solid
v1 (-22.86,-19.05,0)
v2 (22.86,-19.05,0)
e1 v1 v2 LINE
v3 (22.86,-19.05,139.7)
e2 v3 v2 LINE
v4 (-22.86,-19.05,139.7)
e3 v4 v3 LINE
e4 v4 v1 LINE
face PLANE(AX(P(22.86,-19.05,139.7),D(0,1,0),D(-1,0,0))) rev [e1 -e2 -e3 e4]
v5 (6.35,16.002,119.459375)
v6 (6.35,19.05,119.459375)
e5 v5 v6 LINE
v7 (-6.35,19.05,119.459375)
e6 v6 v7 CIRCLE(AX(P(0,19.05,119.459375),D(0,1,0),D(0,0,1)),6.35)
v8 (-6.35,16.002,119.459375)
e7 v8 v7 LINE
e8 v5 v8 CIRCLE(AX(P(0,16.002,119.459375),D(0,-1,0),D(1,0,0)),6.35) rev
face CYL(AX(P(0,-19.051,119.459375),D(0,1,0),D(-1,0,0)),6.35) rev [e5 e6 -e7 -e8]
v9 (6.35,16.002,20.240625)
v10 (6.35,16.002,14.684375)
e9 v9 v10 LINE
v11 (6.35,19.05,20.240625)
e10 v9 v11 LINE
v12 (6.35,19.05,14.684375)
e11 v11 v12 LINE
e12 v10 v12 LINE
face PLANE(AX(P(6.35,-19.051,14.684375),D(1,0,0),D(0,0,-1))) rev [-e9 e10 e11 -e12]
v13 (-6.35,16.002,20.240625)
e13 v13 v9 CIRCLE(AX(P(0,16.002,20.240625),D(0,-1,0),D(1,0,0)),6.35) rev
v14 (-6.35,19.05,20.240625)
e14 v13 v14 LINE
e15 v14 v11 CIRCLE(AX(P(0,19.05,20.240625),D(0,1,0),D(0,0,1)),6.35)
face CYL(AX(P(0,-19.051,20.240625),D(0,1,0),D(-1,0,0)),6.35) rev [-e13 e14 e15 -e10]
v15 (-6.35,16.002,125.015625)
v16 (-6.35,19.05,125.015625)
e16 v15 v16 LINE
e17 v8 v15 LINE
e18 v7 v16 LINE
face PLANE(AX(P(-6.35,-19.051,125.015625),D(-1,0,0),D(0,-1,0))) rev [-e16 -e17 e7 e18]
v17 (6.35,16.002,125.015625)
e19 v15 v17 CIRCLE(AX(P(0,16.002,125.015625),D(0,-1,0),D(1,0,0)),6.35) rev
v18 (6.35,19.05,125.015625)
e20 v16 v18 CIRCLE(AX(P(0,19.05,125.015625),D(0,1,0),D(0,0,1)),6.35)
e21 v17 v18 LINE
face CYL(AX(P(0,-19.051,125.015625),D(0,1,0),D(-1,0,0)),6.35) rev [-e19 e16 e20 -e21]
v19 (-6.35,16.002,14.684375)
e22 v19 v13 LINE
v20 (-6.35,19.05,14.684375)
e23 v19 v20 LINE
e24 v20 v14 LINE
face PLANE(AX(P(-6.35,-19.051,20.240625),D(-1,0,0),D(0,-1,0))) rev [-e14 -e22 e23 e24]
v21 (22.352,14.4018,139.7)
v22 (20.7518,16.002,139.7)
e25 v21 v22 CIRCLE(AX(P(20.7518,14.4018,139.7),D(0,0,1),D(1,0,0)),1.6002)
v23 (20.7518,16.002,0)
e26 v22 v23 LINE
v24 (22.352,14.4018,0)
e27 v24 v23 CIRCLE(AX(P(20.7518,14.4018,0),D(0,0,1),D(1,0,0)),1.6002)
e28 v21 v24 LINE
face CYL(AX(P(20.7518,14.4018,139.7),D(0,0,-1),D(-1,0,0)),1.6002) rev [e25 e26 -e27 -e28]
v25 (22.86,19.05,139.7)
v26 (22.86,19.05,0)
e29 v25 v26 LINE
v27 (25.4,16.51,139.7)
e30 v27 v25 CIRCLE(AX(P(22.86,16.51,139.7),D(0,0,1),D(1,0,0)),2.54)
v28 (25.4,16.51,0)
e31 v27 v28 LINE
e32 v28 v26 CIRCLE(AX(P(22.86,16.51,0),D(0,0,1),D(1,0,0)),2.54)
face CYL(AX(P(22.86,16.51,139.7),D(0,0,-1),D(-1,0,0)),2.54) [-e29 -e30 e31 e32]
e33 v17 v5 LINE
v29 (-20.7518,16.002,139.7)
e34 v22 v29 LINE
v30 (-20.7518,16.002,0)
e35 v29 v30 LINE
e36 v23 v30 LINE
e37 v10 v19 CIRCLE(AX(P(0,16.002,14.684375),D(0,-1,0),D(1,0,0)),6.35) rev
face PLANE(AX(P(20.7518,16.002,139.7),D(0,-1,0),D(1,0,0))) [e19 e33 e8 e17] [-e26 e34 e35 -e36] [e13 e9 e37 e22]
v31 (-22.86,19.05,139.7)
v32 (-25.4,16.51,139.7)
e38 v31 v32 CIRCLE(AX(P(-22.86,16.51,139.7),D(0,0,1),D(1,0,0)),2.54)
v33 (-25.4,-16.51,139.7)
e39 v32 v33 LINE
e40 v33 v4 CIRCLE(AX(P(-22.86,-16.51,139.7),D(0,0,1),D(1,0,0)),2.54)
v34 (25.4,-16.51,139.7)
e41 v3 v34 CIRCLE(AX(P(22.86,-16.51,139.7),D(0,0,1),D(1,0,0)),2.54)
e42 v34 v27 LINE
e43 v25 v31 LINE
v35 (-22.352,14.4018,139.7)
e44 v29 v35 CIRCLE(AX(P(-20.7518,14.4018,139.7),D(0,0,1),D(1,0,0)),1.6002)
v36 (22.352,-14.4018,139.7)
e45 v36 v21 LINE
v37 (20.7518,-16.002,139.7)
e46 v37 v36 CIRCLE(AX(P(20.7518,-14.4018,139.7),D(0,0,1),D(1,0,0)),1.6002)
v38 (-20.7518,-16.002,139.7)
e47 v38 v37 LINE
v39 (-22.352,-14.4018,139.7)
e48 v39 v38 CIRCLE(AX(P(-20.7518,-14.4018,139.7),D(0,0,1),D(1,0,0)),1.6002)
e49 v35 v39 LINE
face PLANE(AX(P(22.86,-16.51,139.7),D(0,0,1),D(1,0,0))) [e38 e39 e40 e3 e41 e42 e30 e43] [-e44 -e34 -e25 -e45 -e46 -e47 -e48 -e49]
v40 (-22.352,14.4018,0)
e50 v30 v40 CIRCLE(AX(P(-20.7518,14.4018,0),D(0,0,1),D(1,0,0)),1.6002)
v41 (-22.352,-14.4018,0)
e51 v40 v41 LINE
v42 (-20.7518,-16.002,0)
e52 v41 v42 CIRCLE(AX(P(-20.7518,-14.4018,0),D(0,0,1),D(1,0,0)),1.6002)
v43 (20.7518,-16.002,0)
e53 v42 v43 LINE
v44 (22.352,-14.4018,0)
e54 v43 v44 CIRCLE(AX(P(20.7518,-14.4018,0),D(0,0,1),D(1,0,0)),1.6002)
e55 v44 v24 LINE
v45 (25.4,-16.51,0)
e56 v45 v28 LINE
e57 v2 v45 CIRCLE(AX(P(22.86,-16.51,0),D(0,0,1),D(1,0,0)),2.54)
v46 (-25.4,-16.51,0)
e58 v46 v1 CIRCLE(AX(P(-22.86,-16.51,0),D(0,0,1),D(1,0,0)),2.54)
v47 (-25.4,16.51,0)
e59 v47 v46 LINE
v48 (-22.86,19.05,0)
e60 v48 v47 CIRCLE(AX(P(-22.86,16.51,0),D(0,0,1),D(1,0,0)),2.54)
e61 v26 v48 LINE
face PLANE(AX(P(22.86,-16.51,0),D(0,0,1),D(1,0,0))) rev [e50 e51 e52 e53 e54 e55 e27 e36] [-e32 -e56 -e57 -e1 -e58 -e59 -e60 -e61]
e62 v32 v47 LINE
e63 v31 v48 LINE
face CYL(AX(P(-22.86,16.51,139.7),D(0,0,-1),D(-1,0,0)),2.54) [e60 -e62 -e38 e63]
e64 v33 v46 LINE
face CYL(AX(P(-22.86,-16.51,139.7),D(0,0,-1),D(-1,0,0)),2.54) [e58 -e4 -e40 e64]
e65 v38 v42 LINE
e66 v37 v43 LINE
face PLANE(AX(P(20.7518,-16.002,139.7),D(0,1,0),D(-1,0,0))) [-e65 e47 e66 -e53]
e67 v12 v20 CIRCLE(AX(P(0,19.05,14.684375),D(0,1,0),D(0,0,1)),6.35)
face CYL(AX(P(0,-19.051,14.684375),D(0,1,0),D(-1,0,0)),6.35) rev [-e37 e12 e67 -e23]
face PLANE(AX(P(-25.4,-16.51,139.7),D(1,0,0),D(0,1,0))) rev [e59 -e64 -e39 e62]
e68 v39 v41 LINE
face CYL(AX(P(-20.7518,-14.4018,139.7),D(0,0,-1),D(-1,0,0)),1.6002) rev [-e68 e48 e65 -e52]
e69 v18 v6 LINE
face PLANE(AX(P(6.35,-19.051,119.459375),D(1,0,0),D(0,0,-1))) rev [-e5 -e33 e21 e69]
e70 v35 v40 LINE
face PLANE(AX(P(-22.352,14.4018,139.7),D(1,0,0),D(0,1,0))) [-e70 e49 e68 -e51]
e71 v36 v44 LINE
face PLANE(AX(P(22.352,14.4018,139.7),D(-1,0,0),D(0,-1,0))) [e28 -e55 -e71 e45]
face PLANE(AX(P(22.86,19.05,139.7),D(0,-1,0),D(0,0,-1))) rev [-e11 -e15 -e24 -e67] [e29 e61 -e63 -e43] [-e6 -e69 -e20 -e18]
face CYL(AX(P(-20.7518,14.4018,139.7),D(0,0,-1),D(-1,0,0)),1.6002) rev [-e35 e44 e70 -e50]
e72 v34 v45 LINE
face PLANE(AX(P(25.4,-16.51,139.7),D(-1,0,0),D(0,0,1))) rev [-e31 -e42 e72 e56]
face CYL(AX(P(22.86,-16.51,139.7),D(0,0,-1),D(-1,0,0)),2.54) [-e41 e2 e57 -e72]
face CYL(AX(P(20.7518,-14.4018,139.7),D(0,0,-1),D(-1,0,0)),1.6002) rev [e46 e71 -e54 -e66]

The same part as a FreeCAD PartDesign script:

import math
import FreeCAD as App
import Part
import Sketcher
Q = App.Units.Quantity

doc = App.newDocument("Part")
body = doc.addObject("PartDesign::Body", "Body")

# Sketch on XY plane
sketch1 = body.newObject("Sketcher::SketchObject", "Sketch")
sketch1.AttachmentSupport = (doc.getObject("XY_Plane"), [""])
sketch1.MapMode = "FlatFace"
sketch1.addGeometry(Part.LineSegment(App.Vector(25.4, -16.51, 0), App.Vector(25.4, 16.51, 0)), False)
sketch1.addGeometry(Part.ArcOfCircle(Part.Circle(App.Vector(22.86, 16.51, 0), App.Vector(0, 0, 1), 2.54), math.radians(0), math.radians(90)), False)
sketch1.addGeometry(Part.LineSegment(App.Vector(22.86, 19.05, 0), App.Vector(-22.86, 19.05, 0)), False)
sketch1.addGeometry(Part.ArcOfCircle(Part.Circle(App.Vector(-22.86, 16.51, 0), App.Vector(0, 0, 1), 2.54), math.radians(90), math.radians(180)), False)
sketch1.addGeometry(Part.LineSegment(App.Vector(-25.4, 16.51, 0), App.Vector(-25.4, -16.51, 0)), False)
sketch1.addGeometry(Part.ArcOfCircle(Part.Circle(App.Vector(-22.86, -16.51, 0), App.Vector(0, 0, 1), 2.54), math.radians(-180), math.radians(-90)), False)
sketch1.addGeometry(Part.LineSegment(App.Vector(-22.86, -19.05, 0), App.Vector(22.86, -19.05, 0)), False)
sketch1.addGeometry(Part.ArcOfCircle(Part.Circle(App.Vector(22.86, -16.51, 0), App.Vector(0, 0, 1), 2.54), math.radians(-90), math.radians(0)), False)
sketch1.addGeometry(Part.ArcOfCircle(Part.Circle(App.Vector(20.7518, 14.4018, 0), App.Vector(0, 0, 1), 1.6002), math.radians(0), math.radians(90)), False)
sketch1.addGeometry(Part.LineSegment(App.Vector(22.352, 14.4018, 0), App.Vector(22.352, -14.4018, 0)), False)
sketch1.addGeometry(Part.ArcOfCircle(Part.Circle(App.Vector(20.7518, -14.4018, 0), App.Vector(0, 0, 1), 1.6002), math.radians(-90), math.radians(0)), False)
sketch1.addGeometry(Part.LineSegment(App.Vector(20.7518, -16.002, 0), App.Vector(-20.7518, -16.002, 0)), False)
sketch1.addGeometry(Part.ArcOfCircle(Part.Circle(App.Vector(-20.7518, -14.4018, 0), App.Vector(0, 0, 1), 1.6002), math.radians(-180), math.radians(-90)), False)
sketch1.addGeometry(Part.LineSegment(App.Vector(-22.352, -14.4018, 0), App.Vector(-22.352, 14.4018, 0)), False)
sketch1.addGeometry(Part.ArcOfCircle(Part.Circle(App.Vector(-20.7518, 14.4018, 0), App.Vector(0, 0, 1), 1.6002), math.radians(90), math.radians(180)), False)
sketch1.addGeometry(Part.LineSegment(App.Vector(-20.7518, 16.002, 0), App.Vector(20.7518, 16.002, 0)), False)
sketch1.addConstraint(Sketcher.Constraint("Tangent", 0, 2, 1, 1))
sketch1.addConstraint(Sketcher.Constraint("Tangent", 1, 2, 2, 1))
sketch1.addConstraint(Sketcher.Constraint("Tangent", 2, 2, 3, 1))
sketch1.addConstraint(Sketcher.Constraint("Tangent", 3, 2, 4, 1))
sketch1.addConstraint(Sketcher.Constraint("Tangent", 4, 2, 5, 1))
sketch1.addConstraint(Sketcher.Constraint("Tangent", 5, 2, 6, 1))
sketch1.addConstraint(Sketcher.Constraint("Tangent", 6, 2, 7, 1))
sketch1.addConstraint(Sketcher.Constraint("Tangent", 7, 2, 0, 1))
sketch1.addConstraint(Sketcher.Constraint("Tangent", 8, 1, 9, 1))
sketch1.addConstraint(Sketcher.Constraint("Tangent", 9, 2, 10, 2))
sketch1.addConstraint(Sketcher.Constraint("Tangent", 10, 1, 11, 1))
sketch1.addConstraint(Sketcher.Constraint("Tangent", 11, 2, 12, 2))
sketch1.addConstraint(Sketcher.Constraint("Tangent", 12, 1, 13, 1))
sketch1.addConstraint(Sketcher.Constraint("Tangent", 13, 2, 14, 2))
sketch1.addConstraint(Sketcher.Constraint("Tangent", 14, 1, 15, 1))
sketch1.addConstraint(Sketcher.Constraint("Tangent", 15, 2, 8, 2))
sketch1.addConstraint(Sketcher.Constraint("Vertical", 0))
sketch1.addConstraint(Sketcher.Constraint("Horizontal", 2))
sketch1.addConstraint(Sketcher.Constraint("Vertical", 4))
sketch1.addConstraint(Sketcher.Constraint("Horizontal", 6))
sketch1.addConstraint(Sketcher.Constraint("Vertical", 9))
sketch1.addConstraint(Sketcher.Constraint("Horizontal", 11))
sketch1.addConstraint(Sketcher.Constraint("Vertical", 13))
sketch1.addConstraint(Sketcher.Constraint("Horizontal", 15))
sketch1.addConstraint(Sketcher.Constraint("Equal", 1, 3))
sketch1.addConstraint(Sketcher.Constraint("Equal", 3, 5))
sketch1.addConstraint(Sketcher.Constraint("Equal", 5, 7))
sketch1.addConstraint(Sketcher.Constraint("Equal", 8, 10))
sketch1.addConstraint(Sketcher.Constraint("Equal", 10, 12))
sketch1.addConstraint(Sketcher.Constraint("Equal", 12, 14))
sketch1.addConstraint(Sketcher.Constraint("Symmetric", 1, 3, 5, 3, -1, 1))
sketch1.addConstraint(Sketcher.Constraint("Symmetric", 8, 3, 12, 3, -1, 1))
sketch1.addConstraint(Sketcher.Constraint("Radius", 1, Q("0.1 in")))
sketch1.addConstraint(Sketcher.Constraint("DistanceX", 2, 2, 2, 1, Q("1.8 in")))
sketch1.addConstraint(Sketcher.Constraint("DistanceY", 0, 1, 0, 2, Q("1.3 in")))
sketch1.addConstraint(Sketcher.Constraint("Radius", 8, Q("0.063 in")))
sketch1.addConstraint(Sketcher.Constraint("DistanceX", 11, 2, 11, 1, Q("1.634 in")))
sketch1.addConstraint(Sketcher.Constraint("DistanceY", 9, 2, 9, 1, Q("1.134 in")))
pad1 = body.newObject("PartDesign::Pad", "Pad")
pad1.Profile = sketch1
pad1.Length = Q("5.5 in")

# Sketch on XZ plane
sketch2 = body.newObject("Sketcher::SketchObject", "Sketch001")
sketch2.AttachmentSupport = (doc.getObject("XZ_Plane"), [""])
sketch2.MapMode = "FlatFace"
sketch2.AttachmentOffset = App.Placement(App.Vector(0, 0, -0.75 * 25.4), App.Rotation())
sketch2.addGeometry(Part.LineSegment(App.Vector(-6.35, 14.684375, 0), App.Vector(-6.35, 20.240625, 0)), False)
sketch2.addGeometry(Part.ArcOfCircle(Part.Circle(App.Vector(0, 20.240625, 0), App.Vector(0, 0, 1), 6.35), math.radians(0), math.radians(180)), False)
sketch2.addGeometry(Part.LineSegment(App.Vector(6.35, 20.240625, 0), App.Vector(6.35, 14.684375, 0)), False)
sketch2.addGeometry(Part.ArcOfCircle(Part.Circle(App.Vector(0, 14.684375, 0), App.Vector(0, 0, 1), 6.35), math.radians(180), math.radians(360)), False)
sketch2.addGeometry(Part.LineSegment(App.Vector(-6.35, 119.459375, 0), App.Vector(-6.35, 125.015625, 0)), False)
sketch2.addGeometry(Part.ArcOfCircle(Part.Circle(App.Vector(0, 125.015625, 0), App.Vector(0, 0, 1), 6.35), math.radians(0), math.radians(180)), False)
sketch2.addGeometry(Part.LineSegment(App.Vector(6.35, 125.015625, 0), App.Vector(6.35, 119.459375, 0)), False)
sketch2.addGeometry(Part.ArcOfCircle(Part.Circle(App.Vector(0, 119.459375, 0), App.Vector(0, 0, 1), 6.35), math.radians(180), math.radians(360)), False)
sketch2.addConstraint(Sketcher.Constraint("Tangent", 0, 2, 1, 2))
sketch2.addConstraint(Sketcher.Constraint("Tangent", 1, 1, 2, 1))
sketch2.addConstraint(Sketcher.Constraint("Tangent", 2, 2, 3, 2))
sketch2.addConstraint(Sketcher.Constraint("Tangent", 3, 1, 0, 1))
sketch2.addConstraint(Sketcher.Constraint("Tangent", 4, 2, 5, 2))
sketch2.addConstraint(Sketcher.Constraint("Tangent", 5, 1, 6, 1))
sketch2.addConstraint(Sketcher.Constraint("Tangent", 6, 2, 7, 2))
sketch2.addConstraint(Sketcher.Constraint("Tangent", 7, 1, 4, 1))
sketch2.addConstraint(Sketcher.Constraint("Vertical", 0))
sketch2.addConstraint(Sketcher.Constraint("Vertical", 2))
sketch2.addConstraint(Sketcher.Constraint("Vertical", 4))
sketch2.addConstraint(Sketcher.Constraint("Vertical", 6))
sketch2.addConstraint(Sketcher.Constraint("Equal", 3, 5))
sketch2.addConstraint(Sketcher.Constraint("PointOnObject", 1, 3, -2))
sketch2.addConstraint(Sketcher.Constraint("PointOnObject", 5, 3, -2))
sketch2.addConstraint(Sketcher.Constraint("Equal", 2, 4))
sketch2.addConstraint(Sketcher.Constraint("Radius", 1, Q("0.25 in")))
sketch2.addConstraint(Sketcher.Constraint("DistanceY", 0, 1, 0, 2, Q("0.21875 in")))
sketch2.addConstraint(Sketcher.Constraint("DistanceY", -1, 1, 1, 3, Q("0.796875 in")))
sketch2.addConstraint(Sketcher.Constraint("DistanceY", -1, 1, 5, 3, Q("4.921875 in")))
pocket1 = body.newObject("PartDesign::Pocket", "Pocket")
pocket1.Profile = sketch2
pocket1.Length = Q("0.12 in")
pocket1.Reversed = True

doc.recompute()
